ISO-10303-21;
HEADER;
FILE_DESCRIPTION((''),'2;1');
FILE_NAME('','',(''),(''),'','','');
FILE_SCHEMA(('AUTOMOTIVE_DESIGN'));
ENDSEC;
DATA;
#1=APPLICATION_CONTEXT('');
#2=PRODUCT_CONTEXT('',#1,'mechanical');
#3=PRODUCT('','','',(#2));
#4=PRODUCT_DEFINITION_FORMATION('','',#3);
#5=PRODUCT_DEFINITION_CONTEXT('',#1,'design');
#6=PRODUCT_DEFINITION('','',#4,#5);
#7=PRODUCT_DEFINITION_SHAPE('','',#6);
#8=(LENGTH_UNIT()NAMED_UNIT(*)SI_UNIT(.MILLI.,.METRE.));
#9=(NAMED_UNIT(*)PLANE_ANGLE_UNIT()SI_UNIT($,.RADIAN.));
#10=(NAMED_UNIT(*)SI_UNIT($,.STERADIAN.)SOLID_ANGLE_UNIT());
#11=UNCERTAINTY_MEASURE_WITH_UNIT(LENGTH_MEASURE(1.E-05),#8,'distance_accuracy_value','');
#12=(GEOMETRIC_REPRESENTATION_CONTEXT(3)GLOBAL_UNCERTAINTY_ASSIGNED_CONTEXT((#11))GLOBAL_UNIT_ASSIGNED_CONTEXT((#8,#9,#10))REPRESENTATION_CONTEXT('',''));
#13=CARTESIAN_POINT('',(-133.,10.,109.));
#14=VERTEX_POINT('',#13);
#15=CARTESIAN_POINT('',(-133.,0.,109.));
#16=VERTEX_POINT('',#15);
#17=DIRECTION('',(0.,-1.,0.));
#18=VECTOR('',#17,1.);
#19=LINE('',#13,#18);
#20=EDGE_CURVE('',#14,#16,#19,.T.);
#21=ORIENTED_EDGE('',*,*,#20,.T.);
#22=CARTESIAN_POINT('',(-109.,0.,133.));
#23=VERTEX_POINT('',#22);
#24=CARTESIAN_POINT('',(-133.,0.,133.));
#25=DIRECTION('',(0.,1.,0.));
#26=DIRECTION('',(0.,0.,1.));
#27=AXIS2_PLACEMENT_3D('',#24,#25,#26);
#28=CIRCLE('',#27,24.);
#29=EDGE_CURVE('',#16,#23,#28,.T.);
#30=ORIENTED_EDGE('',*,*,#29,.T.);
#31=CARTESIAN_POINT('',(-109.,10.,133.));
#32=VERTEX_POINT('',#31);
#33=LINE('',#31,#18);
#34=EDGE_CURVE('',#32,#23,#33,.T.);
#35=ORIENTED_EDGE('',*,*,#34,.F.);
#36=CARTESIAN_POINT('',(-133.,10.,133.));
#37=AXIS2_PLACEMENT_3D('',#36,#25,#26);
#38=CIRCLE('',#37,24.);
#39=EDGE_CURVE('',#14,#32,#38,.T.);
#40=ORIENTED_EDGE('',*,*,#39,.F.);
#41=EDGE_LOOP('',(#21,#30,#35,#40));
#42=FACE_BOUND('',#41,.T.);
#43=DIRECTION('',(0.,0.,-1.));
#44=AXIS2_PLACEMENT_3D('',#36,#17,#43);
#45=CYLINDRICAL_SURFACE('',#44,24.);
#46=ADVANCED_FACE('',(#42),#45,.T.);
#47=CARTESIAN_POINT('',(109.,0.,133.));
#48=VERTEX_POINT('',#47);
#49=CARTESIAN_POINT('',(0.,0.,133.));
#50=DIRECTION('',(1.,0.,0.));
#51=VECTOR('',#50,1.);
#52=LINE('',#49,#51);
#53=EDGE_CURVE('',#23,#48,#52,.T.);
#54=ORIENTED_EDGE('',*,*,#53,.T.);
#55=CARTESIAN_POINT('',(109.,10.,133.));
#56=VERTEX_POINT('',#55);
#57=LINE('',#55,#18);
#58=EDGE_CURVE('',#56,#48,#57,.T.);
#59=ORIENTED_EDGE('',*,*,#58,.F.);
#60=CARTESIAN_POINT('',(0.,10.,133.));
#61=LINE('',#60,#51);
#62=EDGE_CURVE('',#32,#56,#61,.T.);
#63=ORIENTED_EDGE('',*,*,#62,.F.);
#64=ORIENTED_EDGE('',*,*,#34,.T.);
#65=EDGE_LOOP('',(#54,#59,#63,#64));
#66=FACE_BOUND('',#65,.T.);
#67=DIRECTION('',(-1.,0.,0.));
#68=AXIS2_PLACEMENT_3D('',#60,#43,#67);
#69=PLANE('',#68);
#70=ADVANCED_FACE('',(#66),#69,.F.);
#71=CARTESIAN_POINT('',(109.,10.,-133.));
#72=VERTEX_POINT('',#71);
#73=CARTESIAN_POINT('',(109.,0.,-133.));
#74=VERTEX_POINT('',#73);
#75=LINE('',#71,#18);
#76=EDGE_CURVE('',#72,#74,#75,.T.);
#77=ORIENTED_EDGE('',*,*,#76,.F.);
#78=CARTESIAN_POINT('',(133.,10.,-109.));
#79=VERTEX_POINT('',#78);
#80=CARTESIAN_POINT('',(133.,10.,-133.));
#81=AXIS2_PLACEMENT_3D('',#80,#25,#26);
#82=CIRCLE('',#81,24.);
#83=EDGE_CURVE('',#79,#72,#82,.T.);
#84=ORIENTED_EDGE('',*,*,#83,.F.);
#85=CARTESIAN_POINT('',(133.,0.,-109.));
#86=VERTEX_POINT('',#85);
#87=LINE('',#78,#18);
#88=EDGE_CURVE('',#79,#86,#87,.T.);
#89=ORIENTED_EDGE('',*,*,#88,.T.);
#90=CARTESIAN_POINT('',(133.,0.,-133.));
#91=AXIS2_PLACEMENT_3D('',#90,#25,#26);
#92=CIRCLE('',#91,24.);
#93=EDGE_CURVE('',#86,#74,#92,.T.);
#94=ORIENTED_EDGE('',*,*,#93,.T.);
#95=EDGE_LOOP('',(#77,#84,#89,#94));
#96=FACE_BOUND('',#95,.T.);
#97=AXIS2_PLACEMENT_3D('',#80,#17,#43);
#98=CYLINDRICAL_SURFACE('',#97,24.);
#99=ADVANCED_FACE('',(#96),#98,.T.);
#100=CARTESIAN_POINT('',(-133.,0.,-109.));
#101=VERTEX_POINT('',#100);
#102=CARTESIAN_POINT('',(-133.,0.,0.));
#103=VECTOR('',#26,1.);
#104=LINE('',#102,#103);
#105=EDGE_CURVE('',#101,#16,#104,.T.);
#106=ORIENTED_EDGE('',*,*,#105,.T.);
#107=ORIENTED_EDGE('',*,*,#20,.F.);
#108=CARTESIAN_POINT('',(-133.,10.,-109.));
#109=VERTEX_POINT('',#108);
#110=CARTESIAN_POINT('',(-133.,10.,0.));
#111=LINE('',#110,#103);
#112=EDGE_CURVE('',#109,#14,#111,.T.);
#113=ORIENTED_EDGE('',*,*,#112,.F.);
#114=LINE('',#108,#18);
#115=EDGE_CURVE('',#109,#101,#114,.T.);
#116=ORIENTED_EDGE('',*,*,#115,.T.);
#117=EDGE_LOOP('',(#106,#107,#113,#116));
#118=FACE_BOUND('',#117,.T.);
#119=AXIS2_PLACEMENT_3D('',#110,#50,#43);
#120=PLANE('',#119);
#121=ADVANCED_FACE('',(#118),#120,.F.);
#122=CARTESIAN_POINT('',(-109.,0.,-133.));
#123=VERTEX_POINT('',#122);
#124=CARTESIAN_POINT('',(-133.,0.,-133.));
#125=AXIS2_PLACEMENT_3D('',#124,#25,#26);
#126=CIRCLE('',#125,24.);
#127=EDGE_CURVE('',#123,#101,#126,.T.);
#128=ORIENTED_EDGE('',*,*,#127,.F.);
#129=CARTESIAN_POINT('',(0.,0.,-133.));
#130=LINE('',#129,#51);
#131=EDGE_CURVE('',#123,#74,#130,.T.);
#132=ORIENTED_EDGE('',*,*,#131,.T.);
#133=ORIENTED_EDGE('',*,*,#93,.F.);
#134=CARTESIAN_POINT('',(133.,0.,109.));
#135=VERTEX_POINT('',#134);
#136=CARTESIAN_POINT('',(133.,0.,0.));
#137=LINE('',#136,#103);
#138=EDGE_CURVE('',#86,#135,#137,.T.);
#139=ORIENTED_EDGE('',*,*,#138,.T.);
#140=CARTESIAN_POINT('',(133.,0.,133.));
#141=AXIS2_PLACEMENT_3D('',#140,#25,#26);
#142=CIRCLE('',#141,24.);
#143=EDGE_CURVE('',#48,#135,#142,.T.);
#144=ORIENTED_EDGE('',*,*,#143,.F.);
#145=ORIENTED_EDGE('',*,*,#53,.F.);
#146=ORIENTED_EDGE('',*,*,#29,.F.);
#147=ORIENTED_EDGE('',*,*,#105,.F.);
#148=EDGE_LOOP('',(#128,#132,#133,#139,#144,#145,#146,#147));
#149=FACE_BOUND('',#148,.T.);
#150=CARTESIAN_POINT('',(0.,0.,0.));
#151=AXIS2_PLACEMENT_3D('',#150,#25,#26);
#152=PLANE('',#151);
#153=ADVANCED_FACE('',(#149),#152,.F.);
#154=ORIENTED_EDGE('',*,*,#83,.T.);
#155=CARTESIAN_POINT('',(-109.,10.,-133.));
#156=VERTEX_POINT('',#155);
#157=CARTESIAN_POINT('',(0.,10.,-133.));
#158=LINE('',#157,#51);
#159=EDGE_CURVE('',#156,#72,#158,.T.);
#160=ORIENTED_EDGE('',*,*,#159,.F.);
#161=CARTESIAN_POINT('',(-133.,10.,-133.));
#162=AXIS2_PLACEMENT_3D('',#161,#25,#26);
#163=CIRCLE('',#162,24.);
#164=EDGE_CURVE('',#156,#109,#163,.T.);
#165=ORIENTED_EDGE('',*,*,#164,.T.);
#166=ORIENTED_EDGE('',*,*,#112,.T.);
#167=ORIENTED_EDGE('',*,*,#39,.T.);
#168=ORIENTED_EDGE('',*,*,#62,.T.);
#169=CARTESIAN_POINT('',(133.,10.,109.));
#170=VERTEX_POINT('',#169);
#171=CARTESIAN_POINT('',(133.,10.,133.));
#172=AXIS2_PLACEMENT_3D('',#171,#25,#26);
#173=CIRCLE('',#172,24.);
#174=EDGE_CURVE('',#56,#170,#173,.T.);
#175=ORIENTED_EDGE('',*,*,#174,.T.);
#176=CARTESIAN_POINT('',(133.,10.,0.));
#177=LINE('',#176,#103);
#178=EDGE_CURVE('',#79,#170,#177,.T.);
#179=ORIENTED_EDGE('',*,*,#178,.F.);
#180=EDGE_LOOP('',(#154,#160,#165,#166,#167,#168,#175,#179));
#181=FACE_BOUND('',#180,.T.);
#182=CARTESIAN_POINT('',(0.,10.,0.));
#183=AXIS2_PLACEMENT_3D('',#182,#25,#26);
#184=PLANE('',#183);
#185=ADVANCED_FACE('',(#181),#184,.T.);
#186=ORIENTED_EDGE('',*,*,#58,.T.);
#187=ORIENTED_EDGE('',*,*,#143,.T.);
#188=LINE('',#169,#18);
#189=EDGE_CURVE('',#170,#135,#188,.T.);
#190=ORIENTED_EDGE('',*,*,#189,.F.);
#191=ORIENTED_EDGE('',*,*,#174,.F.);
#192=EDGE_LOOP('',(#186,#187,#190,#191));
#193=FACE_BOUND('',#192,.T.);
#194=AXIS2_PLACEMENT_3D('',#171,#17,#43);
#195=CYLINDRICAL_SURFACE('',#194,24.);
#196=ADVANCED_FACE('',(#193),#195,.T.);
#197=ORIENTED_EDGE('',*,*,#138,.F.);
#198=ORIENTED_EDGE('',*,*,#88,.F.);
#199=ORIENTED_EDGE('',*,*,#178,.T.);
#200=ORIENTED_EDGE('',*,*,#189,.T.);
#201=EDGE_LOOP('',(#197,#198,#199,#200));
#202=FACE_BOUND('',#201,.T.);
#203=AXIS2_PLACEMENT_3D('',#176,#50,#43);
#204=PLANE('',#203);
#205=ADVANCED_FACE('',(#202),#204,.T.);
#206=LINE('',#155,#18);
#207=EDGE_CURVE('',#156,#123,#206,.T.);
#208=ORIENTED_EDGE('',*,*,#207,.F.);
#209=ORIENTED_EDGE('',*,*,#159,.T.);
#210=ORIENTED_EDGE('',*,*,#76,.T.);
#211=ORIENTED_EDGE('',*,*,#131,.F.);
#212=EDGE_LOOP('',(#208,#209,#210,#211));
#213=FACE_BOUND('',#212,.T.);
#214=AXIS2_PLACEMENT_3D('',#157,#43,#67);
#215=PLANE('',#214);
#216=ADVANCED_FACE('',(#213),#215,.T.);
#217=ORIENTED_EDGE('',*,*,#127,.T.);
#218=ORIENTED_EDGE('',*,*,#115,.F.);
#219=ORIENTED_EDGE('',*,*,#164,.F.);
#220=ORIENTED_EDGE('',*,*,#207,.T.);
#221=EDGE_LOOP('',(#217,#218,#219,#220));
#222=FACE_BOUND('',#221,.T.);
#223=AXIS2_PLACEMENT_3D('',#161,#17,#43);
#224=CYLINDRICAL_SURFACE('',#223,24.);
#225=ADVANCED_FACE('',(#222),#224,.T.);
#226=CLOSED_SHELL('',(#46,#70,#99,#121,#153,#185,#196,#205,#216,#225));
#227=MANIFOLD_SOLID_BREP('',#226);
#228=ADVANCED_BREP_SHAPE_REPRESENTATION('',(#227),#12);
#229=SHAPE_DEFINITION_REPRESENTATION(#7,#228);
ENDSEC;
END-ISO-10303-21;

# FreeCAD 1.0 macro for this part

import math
import FreeCAD as App
import Part
import Sketcher
from FreeCAD import Vector
Q = App.Units.Quantity

doc = App.newDocument("Part")
body = doc.addObject("PartDesign::Body", "Body")

sketch1 = body.newObject("Sketcher::SketchObject", "Sketch")
sketch1.AttachmentSupport = (doc.getObject("XZ_Plane"), [""])
sketch1.MapMode = "FlatFace"
sketch1.addGeometry([
    Part.LineSegment(Vector(109, -133, 0), Vector(-109, -133, 0)),
    Part.ArcOfCircle(Part.Circle(Vector(-133, -133, 0), Vector(0, 0, 1), 24), math.radians(90), math.radians(360)),
    Part.LineSegment(Vector(-133, -109, 0), Vector(-133, 109, 0)),
    Part.ArcOfCircle(Part.Circle(Vector(-133, 133, 0), Vector(0, 0, 1), 24), math.radians(0), math.radians(270)),
    Part.LineSegment(Vector(-109, 133, 0), Vector(109, 133, 0)),
    Part.ArcOfCircle(Part.Circle(Vector(133, 133, 0), Vector(0, 0, 1), 24), math.radians(-90), math.radians(180)),
    Part.LineSegment(Vector(133, 109, 0), Vector(133, -109, 0)),
    Part.ArcOfCircle(Part.Circle(Vector(133, -133, 0), Vector(0, 0, 1), 24), math.radians(180), math.radians(450)),
], False)
sketch1.addConstraint([
    Sketcher.Constraint("Coincident", 0, 2, 1, 2),
    Sketcher.Constraint("Coincident", 1, 1, 2, 1),
    Sketcher.Constraint("Coincident", 2, 2, 3, 2),
    Sketcher.Constraint("Coincident", 3, 1, 4, 1),
    Sketcher.Constraint("Coincident", 4, 2, 5, 2),
    Sketcher.Constraint("Coincident", 5, 1, 6, 1),
    Sketcher.Constraint("Coincident", 6, 2, 7, 2),
    Sketcher.Constraint("Coincident", 7, 1, 0, 1),
    Sketcher.Constraint("Horizontal", 0),
    Sketcher.Constraint("Vertical", 2),
    Sketcher.Constraint("Horizontal", 4),
    Sketcher.Constraint("Vertical", 6),
    Sketcher.Constraint("Equal", 1, 3),
    Sketcher.Constraint("Equal", 3, 5),
    Sketcher.Constraint("Equal", 5, 7),
    Sketcher.Constraint("Symmetric", 1, 3, 5, 3, -1, 1),
    Sketcher.Constraint("Symmetric", 3, 3, 7, 3, -1, 1),
    Sketcher.Constraint("Symmetric", 3, 3, 5, 3, -2),
    Sketcher.Constraint("Horizontal", 7, 3, 0, 2),
    Sketcher.Constraint("Horizontal", 5, 3, 3, 1),
    Sketcher.Constraint("Vertical", 3, 3, 1, 1),
    Sketcher.Constraint("Vertical", 7, 3, 5, 1),
    Sketcher.Constraint("Equal", 4, 2),
    Sketcher.Constraint("Radius", 1, Q("24 mm")),
    Sketcher.Constraint("DistanceX", 0, 2, 0, 1, Q("218 mm")),
])
pad1 = body.newObject("PartDesign::Pad", "Pad")
pad1.Profile = sketch1
pad1.Length = 10
pad1.Reversed = True

doc.recompute()
